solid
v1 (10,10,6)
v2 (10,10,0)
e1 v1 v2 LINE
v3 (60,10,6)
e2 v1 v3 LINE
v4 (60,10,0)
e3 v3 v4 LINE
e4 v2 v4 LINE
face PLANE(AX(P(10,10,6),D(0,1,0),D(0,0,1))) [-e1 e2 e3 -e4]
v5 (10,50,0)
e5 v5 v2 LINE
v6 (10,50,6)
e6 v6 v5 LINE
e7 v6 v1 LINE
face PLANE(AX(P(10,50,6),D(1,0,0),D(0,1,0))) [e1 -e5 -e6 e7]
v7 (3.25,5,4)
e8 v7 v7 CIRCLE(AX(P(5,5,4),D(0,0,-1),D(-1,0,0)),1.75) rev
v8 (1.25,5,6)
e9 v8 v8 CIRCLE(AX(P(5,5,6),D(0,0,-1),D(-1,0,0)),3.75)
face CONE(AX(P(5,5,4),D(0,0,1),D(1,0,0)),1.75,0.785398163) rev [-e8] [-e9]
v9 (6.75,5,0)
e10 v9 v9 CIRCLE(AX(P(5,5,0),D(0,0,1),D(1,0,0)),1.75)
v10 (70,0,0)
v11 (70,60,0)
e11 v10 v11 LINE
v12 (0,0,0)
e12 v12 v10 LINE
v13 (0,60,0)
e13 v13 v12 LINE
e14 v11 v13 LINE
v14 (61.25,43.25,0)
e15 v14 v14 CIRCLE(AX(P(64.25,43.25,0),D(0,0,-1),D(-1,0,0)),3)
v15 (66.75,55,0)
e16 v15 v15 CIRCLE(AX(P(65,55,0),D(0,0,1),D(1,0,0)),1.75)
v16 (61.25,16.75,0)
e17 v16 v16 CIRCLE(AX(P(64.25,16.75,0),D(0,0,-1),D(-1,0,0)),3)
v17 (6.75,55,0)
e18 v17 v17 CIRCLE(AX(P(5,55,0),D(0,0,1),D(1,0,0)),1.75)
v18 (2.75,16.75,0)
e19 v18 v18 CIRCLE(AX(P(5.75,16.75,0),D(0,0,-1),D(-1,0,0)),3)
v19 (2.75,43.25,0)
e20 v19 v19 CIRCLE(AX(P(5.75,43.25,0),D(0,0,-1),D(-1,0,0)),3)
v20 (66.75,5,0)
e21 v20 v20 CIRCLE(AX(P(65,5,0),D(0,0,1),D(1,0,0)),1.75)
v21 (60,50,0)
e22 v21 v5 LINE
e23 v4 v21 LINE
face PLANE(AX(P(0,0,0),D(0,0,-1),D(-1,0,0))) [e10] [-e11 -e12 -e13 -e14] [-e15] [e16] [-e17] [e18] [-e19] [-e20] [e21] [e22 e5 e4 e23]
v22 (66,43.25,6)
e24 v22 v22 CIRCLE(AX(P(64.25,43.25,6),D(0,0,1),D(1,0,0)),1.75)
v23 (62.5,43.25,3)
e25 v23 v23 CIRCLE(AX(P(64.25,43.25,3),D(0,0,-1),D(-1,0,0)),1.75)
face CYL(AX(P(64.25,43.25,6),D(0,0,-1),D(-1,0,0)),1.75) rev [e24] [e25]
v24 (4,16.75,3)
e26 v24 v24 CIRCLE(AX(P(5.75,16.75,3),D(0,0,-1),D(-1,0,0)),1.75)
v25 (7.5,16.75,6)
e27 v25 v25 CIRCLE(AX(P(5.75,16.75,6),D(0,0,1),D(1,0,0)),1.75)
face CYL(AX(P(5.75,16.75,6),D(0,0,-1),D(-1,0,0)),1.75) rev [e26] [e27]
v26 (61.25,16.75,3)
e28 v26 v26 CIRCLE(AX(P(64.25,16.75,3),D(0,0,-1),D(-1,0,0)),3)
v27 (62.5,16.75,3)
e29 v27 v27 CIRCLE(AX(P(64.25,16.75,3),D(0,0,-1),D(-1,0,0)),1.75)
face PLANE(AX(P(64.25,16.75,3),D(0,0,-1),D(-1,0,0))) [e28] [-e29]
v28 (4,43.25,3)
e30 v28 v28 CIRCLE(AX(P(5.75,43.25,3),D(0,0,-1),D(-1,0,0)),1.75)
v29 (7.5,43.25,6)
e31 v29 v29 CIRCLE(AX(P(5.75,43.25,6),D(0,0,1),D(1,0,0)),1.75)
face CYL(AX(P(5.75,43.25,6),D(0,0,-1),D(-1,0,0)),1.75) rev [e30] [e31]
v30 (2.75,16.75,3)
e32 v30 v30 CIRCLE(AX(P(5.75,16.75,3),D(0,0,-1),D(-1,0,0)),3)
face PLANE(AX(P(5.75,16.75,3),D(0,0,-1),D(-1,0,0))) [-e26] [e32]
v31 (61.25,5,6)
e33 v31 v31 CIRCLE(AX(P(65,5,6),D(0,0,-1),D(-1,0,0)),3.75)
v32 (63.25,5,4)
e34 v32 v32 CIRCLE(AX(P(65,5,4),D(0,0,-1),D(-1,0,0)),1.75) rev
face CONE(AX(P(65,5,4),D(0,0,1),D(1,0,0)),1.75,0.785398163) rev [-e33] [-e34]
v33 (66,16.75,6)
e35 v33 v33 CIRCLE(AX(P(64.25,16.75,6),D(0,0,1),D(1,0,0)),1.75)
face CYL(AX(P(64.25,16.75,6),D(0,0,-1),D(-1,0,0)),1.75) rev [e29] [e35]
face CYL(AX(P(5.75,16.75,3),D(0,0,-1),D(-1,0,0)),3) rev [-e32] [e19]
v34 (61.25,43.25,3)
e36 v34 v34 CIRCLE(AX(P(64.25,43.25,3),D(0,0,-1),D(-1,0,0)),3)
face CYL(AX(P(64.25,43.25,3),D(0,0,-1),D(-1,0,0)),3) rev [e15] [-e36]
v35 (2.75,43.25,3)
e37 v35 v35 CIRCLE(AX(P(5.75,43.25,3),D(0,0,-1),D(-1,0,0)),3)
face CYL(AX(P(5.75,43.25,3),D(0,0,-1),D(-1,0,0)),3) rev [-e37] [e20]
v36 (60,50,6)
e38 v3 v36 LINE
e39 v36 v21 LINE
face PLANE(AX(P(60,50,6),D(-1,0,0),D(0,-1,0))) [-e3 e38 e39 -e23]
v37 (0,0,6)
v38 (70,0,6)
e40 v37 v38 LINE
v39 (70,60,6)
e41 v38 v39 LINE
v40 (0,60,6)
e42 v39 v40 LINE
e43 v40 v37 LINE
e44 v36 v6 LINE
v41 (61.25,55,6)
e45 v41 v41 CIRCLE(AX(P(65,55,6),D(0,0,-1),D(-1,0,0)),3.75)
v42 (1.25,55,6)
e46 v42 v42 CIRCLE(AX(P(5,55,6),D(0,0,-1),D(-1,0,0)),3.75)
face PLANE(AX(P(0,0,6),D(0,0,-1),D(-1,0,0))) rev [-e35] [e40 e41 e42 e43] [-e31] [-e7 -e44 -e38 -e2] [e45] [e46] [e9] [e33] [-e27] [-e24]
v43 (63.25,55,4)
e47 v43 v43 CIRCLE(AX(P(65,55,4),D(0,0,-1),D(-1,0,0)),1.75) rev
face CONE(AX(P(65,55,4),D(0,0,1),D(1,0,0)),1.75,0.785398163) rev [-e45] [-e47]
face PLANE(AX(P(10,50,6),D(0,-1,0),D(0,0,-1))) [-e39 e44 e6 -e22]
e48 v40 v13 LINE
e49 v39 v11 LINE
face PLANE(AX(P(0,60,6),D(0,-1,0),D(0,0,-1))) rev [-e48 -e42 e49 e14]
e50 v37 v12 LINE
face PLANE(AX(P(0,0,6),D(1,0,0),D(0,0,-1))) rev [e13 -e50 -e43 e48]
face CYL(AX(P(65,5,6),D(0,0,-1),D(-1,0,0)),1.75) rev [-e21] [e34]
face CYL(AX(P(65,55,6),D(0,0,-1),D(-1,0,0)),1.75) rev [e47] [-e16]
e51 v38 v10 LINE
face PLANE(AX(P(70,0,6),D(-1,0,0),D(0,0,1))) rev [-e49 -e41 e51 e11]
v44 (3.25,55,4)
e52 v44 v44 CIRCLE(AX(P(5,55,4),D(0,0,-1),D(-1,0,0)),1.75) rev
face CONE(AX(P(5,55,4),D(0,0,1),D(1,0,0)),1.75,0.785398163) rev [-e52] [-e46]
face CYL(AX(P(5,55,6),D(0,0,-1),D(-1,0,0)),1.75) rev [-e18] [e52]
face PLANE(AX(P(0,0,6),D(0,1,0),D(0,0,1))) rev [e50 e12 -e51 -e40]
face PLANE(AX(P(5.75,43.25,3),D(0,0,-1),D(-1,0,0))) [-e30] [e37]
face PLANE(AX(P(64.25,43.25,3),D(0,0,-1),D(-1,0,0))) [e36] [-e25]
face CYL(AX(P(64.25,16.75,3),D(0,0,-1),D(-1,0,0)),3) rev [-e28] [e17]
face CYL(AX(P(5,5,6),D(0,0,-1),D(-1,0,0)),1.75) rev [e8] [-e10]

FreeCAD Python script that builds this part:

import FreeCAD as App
import Part
import Sketcher


def edges_at(feature, points):
    """Names of the edges that pass closest to the given points."""
    edges = feature.Shape.Edges
    near = lambda p: min(range(len(edges)), key=lambda i: edges[i].distToShape(Part.Vertex(*p))[0])
    return sorted({f"Edge{near(p) + 1}" for p in points})

doc = App.newDocument("Part")
body = doc.addObject("PartDesign::Body", "Body")

# Sketch on XY plane
sketch1 = body.newObject("Sketcher::SketchObject", "Sketch")
sketch1.AttachmentSupport = (doc.getObject("XY_Plane"), [""])
sketch1.MapMode = "FlatFace"
sketch1.addGeometry(Part.LineSegment(App.Vector(0, 60, 0), App.Vector(0, 0, 0)), False)
sketch1.addGeometry(Part.LineSegment(App.Vector(0, 0, 0), App.Vector(70, 0, 0)), False)
sketch1.addGeometry(Part.LineSegment(App.Vector(70, 0, 0), App.Vector(70, 60, 0)), False)
sketch1.addGeometry(Part.LineSegment(App.Vector(70, 60, 0), App.Vector(0, 60, 0)), False)
sketch1.addGeometry(Part.Circle(App.Vector(5, 5, 0), App.Vector(0, 0, 1), 1.8), False)
sketch1.addGeometry(Part.Circle(App.Vector(5.8, 16.8, 0), App.Vector(0, 0, 1), 1.8), False)
sketch1.addGeometry(Part.Circle(App.Vector(65, 5, 0), App.Vector(0, 0, 1), 1.8), False)
sketch1.addGeometry(Part.LineSegment(App.Vector(60, 10, 0), App.Vector(10, 10, 0)), False)
sketch1.addGeometry(Part.LineSegment(App.Vector(10, 10, 0), App.Vector(10, 50, 0)), False)
sketch1.addGeometry(Part.LineSegment(App.Vector(10, 50, 0), App.Vector(60, 50, 0)), False)
sketch1.addGeometry(Part.LineSegment(App.Vector(60, 50, 0), App.Vector(60, 10, 0)), False)
sketch1.addGeometry(Part.Circle(App.Vector(64.2, 16.8, 0), App.Vector(0, 0, 1), 1.8), False)
sketch1.addGeometry(Part.Circle(App.Vector(5.8, 43.2, 0), App.Vector(0, 0, 1), 1.8), False)
sketch1.addGeometry(Part.Circle(App.Vector(5, 55, 0), App.Vector(0, 0, 1), 1.8), False)
sketch1.addGeometry(Part.Circle(App.Vector(64.2, 43.2, 0), App.Vector(0, 0, 1), 1.8), False)
sketch1.addGeometry(Part.Circle(App.Vector(65, 55, 0), App.Vector(0, 0, 1), 1.8), False)
sketch1.addConstraint(Sketcher.Constraint("Coincident", 0, 2, 1, 1))
sketch1.addConstraint(Sketcher.Constraint("Coincident", 1, 2, 2, 1))
sketch1.addConstraint(Sketcher.Constraint("Coincident", 2, 2, 3, 1))
sketch1.addConstraint(Sketcher.Constraint("Coincident", 3, 2, 0, 1))
sketch1.addConstraint(Sketcher.Constraint("Coincident", 7, 2, 8, 1))
sketch1.addConstraint(Sketcher.Constraint("Coincident", 8, 2, 9, 1))
sketch1.addConstraint(Sketcher.Constraint("Coincident", 9, 2, 10, 1))
sketch1.addConstraint(Sketcher.Constraint("Coincident", 10, 2, 7, 1))
sketch1.addConstraint(Sketcher.Constraint("Vertical", 0))
sketch1.addConstraint(Sketcher.Constraint("Horizontal", 1))
sketch1.addConstraint(Sketcher.Constraint("Vertical", 2))
sketch1.addConstraint(Sketcher.Constraint("Horizontal", 3))
sketch1.addConstraint(Sketcher.Constraint("Horizontal", 7))
sketch1.addConstraint(Sketcher.Constraint("Vertical", 8))
sketch1.addConstraint(Sketcher.Constraint("Horizontal", 9))
sketch1.addConstraint(Sketcher.Constraint("Vertical", 10))
sketch1.addConstraint(Sketcher.Constraint("Coincident", 0, 2, -1, 1))
sketch1.addConstraint(Sketcher.Constraint("Equal", 4, 5))
sketch1.addConstraint(Sketcher.Constraint("Equal", 5, 6))
sketch1.addConstraint(Sketcher.Constraint("Equal", 6, 11))
sketch1.addConstraint(Sketcher.Constraint("Equal", 11, 12))
sketch1.addConstraint(Sketcher.Constraint("Equal", 12, 13))
sketch1.addConstraint(Sketcher.Constraint("Equal", 13, 14))
sketch1.addConstraint(Sketcher.Constraint("Equal", 14, 15))
sketch1.addConstraint(Sketcher.Constraint("Horizontal", 4, 3, 6, 3))
sketch1.addConstraint(Sketcher.Constraint("Horizontal", 5, 3, 11, 3))
sketch1.addConstraint(Sketcher.Constraint("Horizontal", 12, 3, 14, 3))
sketch1.addConstraint(Sketcher.Constraint("Horizontal", 13, 3, 15, 3))
sketch1.addConstraint(Sketcher.Constraint("Vertical", 5, 3, 12, 3))
sketch1.addConstraint(Sketcher.Constraint("Vertical", 4, 3, 13, 3))
sketch1.addConstraint(Sketcher.Constraint("Vertical", 11, 3, 14, 3))
sketch1.addConstraint(Sketcher.Constraint("Vertical", 6, 3, 15, 3))
sketch1.addConstraint(Sketcher.Constraint("Diameter", 4, 3.5))
sketch1.addConstraint(Sketcher.Constraint("DistanceX", 1, 1, 1, 2, 70.0))
sketch1.addConstraint(Sketcher.Constraint("DistanceX", 7, 2, 7, 1, 50.0))
sketch1.addConstraint(Sketcher.Constraint("DistanceY", 0, 2, 0, 1, 60.0))
sketch1.addConstraint(Sketcher.Constraint("DistanceY", 8, 1, 8, 2, 40.0))
sketch1.addConstraint(Sketcher.Constraint("DistanceX", -1, 1, 4, 3, 5.0))
sketch1.addConstraint(Sketcher.Constraint("DistanceY", -1, 1, 4, 3, 5.0))
sketch1.addConstraint(Sketcher.Constraint("DistanceX", -1, 1, 6, 3, 65.0))
sketch1.addConstraint(Sketcher.Constraint("DistanceY", -1, 1, 13, 3, 55.0))
sketch1.addConstraint(Sketcher.Constraint("DistanceX", -1, 1, 7, 2, 10.0))
sketch1.addConstraint(Sketcher.Constraint("DistanceY", -1, 1, 7, 2, 10.0))
sketch1.addConstraint(Sketcher.Constraint("DistanceX", 5, 3, 11, 3, 58.5))
sketch1.addConstraint(Sketcher.Constraint("DistanceY", 5, 3, 12, 3, 26.5))
sketch1.addConstraint(Sketcher.Constraint("DistanceX", -1, 1, 5, 3, 5.75))
sketch1.addConstraint(Sketcher.Constraint("DistanceY", -1, 1, 5, 3, 16.75))
pad1 = body.newObject("PartDesign::Pad", "Pad")
pad1.Profile = sketch1
pad1.Length = 6
doc.recompute()

chamfer = body.newObject("PartDesign::Chamfer", "Chamfer")
chamfer.Base = (pad1, edges_at(pad1, [
    (3.25, 55, 6),
    (63.25, 55, 6),
    (63.25, 5, 6),
    (3.25, 5, 6),
]))
chamfer.Size = 2

# Sketch on XY plane
sketch2 = body.newObject("Sketcher::SketchObject", "Sketch001")
sketch2.AttachmentSupport = (doc.getObject("XY_Plane"), [""])
sketch2.MapMode = "FlatFace"
sketch2.addGeometry(Part.Circle(App.Vector(64.2, 43.2, 0), App.Vector(0, 0, 1), 3), False)
sketch2.addGeometry(Part.Circle(App.Vector(64.2, 16.8, 0), App.Vector(0, 0, 1), 3), False)
sketch2.addGeometry(Part.Circle(App.Vector(5.8, 16.8, 0), App.Vector(0, 0, 1), 3), False)
sketch2.addGeometry(Part.Circle(App.Vector(5.8, 43.2, 0), App.Vector(0, 0, 1), 3), False)
sketch2.addConstraint(Sketcher.Constraint("Equal", 0, 1))
sketch2.addConstraint(Sketcher.Constraint("Equal", 1, 2))
sketch2.addConstraint(Sketcher.Constraint("Equal", 2, 3))
sketch2.addConstraint(Sketcher.Constraint("Horizontal", 1, 3, 2, 3))
sketch2.addConstraint(Sketcher.Constraint("Horizontal", 0, 3, 3, 3))
sketch2.addConstraint(Sketcher.Constraint("Vertical", 0, 3, 1, 3))
sketch2.addConstraint(Sketcher.Constraint("Vertical", 2, 3, 3, 3))
sketch2.addConstraint(Sketcher.Constraint("Diameter", 0, 6.0))
sketch2.addConstraint(Sketcher.Constraint("DistanceY", 1, 3, 0, 3, 26.5))
sketch2.addConstraint(Sketcher.Constraint("DistanceX", 2, 3, 1, 3, 58.5))
sketch2.addConstraint(Sketcher.Constraint("DistanceX", -1, 1, 0, 3, 64.25))
sketch2.addConstraint(Sketcher.Constraint("DistanceY", -1, 1, 0, 3, 43.25))
pocket1 = body.newObject("PartDesign::Pocket", "Pocket")
pocket1.Profile = sketch2
pocket1.Length = 3
pocket1.Reversed = True

doc.recompute()
